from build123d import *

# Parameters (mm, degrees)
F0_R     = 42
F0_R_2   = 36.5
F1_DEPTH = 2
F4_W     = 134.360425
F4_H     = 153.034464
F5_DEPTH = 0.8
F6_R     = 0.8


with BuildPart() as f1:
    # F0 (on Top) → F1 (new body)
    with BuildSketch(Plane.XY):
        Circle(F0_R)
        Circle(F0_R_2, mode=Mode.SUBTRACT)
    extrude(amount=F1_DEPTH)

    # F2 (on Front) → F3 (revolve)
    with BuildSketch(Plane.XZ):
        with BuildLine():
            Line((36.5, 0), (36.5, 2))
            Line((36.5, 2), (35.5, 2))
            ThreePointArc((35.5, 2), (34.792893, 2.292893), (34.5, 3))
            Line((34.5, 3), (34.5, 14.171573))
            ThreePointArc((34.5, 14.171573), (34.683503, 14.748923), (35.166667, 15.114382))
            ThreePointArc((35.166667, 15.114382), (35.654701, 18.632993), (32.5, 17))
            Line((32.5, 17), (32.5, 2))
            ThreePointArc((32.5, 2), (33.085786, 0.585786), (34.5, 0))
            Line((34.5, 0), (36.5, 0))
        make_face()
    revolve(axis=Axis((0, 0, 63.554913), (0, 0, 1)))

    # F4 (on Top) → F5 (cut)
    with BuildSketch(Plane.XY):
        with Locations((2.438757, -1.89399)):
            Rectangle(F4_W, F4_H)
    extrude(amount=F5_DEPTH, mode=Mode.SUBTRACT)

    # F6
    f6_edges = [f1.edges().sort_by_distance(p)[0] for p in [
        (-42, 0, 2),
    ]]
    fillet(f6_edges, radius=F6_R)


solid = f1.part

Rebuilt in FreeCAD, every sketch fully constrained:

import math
import FreeCAD as App
import Part
import Sketcher


def edges_at(feature, points):
    """Names of the edges that pass closest to the given points."""
    edges = feature.Shape.Edges
    near = lambda p: min(range(len(edges)), key=lambda i: edges[i].distToShape(Part.Vertex(*p))[0])
    return sorted({f"Edge{near(p) + 1}" for p in points})

doc = App.newDocument("Part")
body = doc.addObject("PartDesign::Body", "Body")

# Sketch on XY plane
sketch1 = body.newObject("Sketcher::SketchObject", "Sketch")
sketch1.AttachmentSupport = (doc.getObject("XY_Plane"), [""])
sketch1.MapMode = "FlatFace"
sketch1.addGeometry([
    Part.Circle(App.Vector(0, 0, 0), App.Vector(0, 0, 1), 42),
    Part.Circle(App.Vector(0, 0, 0), App.Vector(0, 0, 1), 36.5),
], False)
sketch1.addConstraint([
    Sketcher.Constraint("Coincident", 0, 3, -1, 1),
    Sketcher.Constraint("Coincident", 1, 3, -1, 1),
    Sketcher.Constraint("Diameter", 0, 84.0),
    Sketcher.Constraint("Diameter", 1, 73.0),
])
pad1 = body.newObject("PartDesign::Pad", "Pad")
pad1.Profile = sketch1
pad1.Length = 2

# Sketch on XZ plane
sketch2 = body.newObject("Sketcher::SketchObject", "Sketch001")
sketch2.AttachmentSupport = (doc.getObject("XZ_Plane"), [""])
sketch2.MapMode = "FlatFace"
sketch2.addGeometry([
    Part.LineSegment(App.Vector(36.5, 0, 0), App.Vector(36.5, 2, 0)),  # 0
    Part.LineSegment(App.Vector(36.5, 2, 0), App.Vector(35.5, 2, 0)),  # 1
    Part.ArcOfCircle(Part.Circle(App.Vector(35.499999, 2.999999, 0), App.Vector(0, 0, 1), 0.999999), math.radians(179.999957), math.radians(270.000043)),  # 2
    Part.LineSegment(App.Vector(34.5, 3, 0), App.Vector(34.5, 14.171573, 0)),  # 3
    Part.ArcOfCircle(Part.Circle(App.Vector(35.499999, 14.171574, 0), App.Vector(0, 0, 1), 0.999999), math.radians(109.47115), math.radians(180.000041)),  # 4
    Part.ArcOfCircle(Part.Circle(App.Vector(34.5, 17, 0), App.Vector(0, 0, 1), 2), math.radians(-70.528772), math.radians(180.000001)),  # 5
    Part.LineSegment(App.Vector(32.5, 17, 0), App.Vector(32.5, 2, 0)),  # 6
    Part.ArcOfCircle(Part.Circle(App.Vector(34.499999, 1.999999, 0), App.Vector(0, 0, 1), 1.999999), math.radians(179.999957), math.radians(270.000043)),  # 7
    Part.LineSegment(App.Vector(34.5, 0, 0), App.Vector(36.5, 0, 0)),  # 8
], False)
sketch2.addConstraint([
    Sketcher.Constraint("Coincident", 0, 2, 1, 1),
    Sketcher.Constraint("Tangent", 1, 2, 2, 2),
    Sketcher.Constraint("Tangent", 2, 1, 3, 1),
    Sketcher.Constraint("Tangent", 3, 2, 4, 2),
    Sketcher.Constraint("Tangent", 4, 1, 5, 1),
    Sketcher.Constraint("Tangent", 5, 2, 6, 1),
    Sketcher.Constraint("Tangent", 6, 2, 7, 1),
    Sketcher.Constraint("Tangent", 7, 2, 8, 1),
    Sketcher.Constraint("Coincident", 8, 2, 0, 1),
    Sketcher.Constraint("Vertical", 0),
    Sketcher.Constraint("Horizontal", 1),
    Sketcher.Constraint("Vertical", 3),
    Sketcher.Constraint("Vertical", 6),
    Sketcher.Constraint("Horizontal", 8),
    Sketcher.Constraint("Equal", 2, 4),
    Sketcher.Constraint("Equal", 5, 7),
    Sketcher.Constraint("PointOnObject", 7, 2, -1),
    Sketcher.Constraint("Horizontal", 7, 3, 0, 2),
    Sketcher.Constraint("Vertical", 7, 3, 2, 1),
    Sketcher.Constraint("Equal", 8, 0),
    Sketcher.Constraint("Radius", 2, 0.999999),
    Sketcher.Constraint("Radius", 5, 2.0),
    Sketcher.Constraint("DistanceY", 6, 2, 6, 1, 15.0),
    Sketcher.Constraint("DistanceX", -1, 1, 2, 3, 35.499999),
])
revolution = body.newObject("PartDesign::Revolution", "Revolution")
revolution.Profile = sketch2
revolution.ReferenceAxis = (sketch2, ["V_Axis"])
revolution.Angle = 360

# Sketch on XY plane
sketch3 = body.newObject("Sketcher::SketchObject", "Sketch002")
sketch3.AttachmentSupport = (doc.getObject("XY_Plane"), [""])
sketch3.MapMode = "FlatFace"
sketch3.addGeometry([
    Part.LineSegment(App.Vector(-64.741456, 74.623242, 0), App.Vector(-64.741456, -78.411222, 0)),
    Part.LineSegment(App.Vector(-64.741456, -78.411222, 0), App.Vector(69.61897, -78.411222, 0)),
    Part.LineSegment(App.Vector(69.61897, -78.411222, 0), App.Vector(69.61897, 74.623242, 0)),
    Part.LineSegment(App.Vector(69.61897, 74.623242, 0), App.Vector(-64.741456, 74.623242, 0)),
], False)
sketch3.addConstraint([
    Sketcher.Constraint("Coincident", 0, 2, 1, 1),
    Sketcher.Constraint("Coincident", 1, 2, 2, 1),
    Sketcher.Constraint("Coincident", 2, 2, 3, 1),
    Sketcher.Constraint("Coincident", 3, 2, 0, 1),
    Sketcher.Constraint("Vertical", 0),
    Sketcher.Constraint("Horizontal", 1),
    Sketcher.Constraint("Vertical", 2),
    Sketcher.Constraint("Horizontal", 3),
    Sketcher.Constraint("DistanceX", 1, 1, 1, 2, 134.360425),
    Sketcher.Constraint("DistanceY", 0, 2, 0, 1, 153.034464),
    Sketcher.Constraint("DistanceY", 0, 2, -1, 1, 78.411222),
    Sketcher.Constraint("DistanceX", -1, 1, 1, 2, 69.61897),
])
pocket1 = body.newObject("PartDesign::Pocket", "Pocket")
pocket1.Profile = sketch3
pocket1.Length = 0.8
pocket1.Reversed = True
doc.recompute()

fillet = body.newObject("PartDesign::Fillet", "Fillet")
fillet.Base = (pocket1, edges_at(pocket1, [(-42, 0, 2)]))
fillet.Radius = 0.8

doc.recompute()
